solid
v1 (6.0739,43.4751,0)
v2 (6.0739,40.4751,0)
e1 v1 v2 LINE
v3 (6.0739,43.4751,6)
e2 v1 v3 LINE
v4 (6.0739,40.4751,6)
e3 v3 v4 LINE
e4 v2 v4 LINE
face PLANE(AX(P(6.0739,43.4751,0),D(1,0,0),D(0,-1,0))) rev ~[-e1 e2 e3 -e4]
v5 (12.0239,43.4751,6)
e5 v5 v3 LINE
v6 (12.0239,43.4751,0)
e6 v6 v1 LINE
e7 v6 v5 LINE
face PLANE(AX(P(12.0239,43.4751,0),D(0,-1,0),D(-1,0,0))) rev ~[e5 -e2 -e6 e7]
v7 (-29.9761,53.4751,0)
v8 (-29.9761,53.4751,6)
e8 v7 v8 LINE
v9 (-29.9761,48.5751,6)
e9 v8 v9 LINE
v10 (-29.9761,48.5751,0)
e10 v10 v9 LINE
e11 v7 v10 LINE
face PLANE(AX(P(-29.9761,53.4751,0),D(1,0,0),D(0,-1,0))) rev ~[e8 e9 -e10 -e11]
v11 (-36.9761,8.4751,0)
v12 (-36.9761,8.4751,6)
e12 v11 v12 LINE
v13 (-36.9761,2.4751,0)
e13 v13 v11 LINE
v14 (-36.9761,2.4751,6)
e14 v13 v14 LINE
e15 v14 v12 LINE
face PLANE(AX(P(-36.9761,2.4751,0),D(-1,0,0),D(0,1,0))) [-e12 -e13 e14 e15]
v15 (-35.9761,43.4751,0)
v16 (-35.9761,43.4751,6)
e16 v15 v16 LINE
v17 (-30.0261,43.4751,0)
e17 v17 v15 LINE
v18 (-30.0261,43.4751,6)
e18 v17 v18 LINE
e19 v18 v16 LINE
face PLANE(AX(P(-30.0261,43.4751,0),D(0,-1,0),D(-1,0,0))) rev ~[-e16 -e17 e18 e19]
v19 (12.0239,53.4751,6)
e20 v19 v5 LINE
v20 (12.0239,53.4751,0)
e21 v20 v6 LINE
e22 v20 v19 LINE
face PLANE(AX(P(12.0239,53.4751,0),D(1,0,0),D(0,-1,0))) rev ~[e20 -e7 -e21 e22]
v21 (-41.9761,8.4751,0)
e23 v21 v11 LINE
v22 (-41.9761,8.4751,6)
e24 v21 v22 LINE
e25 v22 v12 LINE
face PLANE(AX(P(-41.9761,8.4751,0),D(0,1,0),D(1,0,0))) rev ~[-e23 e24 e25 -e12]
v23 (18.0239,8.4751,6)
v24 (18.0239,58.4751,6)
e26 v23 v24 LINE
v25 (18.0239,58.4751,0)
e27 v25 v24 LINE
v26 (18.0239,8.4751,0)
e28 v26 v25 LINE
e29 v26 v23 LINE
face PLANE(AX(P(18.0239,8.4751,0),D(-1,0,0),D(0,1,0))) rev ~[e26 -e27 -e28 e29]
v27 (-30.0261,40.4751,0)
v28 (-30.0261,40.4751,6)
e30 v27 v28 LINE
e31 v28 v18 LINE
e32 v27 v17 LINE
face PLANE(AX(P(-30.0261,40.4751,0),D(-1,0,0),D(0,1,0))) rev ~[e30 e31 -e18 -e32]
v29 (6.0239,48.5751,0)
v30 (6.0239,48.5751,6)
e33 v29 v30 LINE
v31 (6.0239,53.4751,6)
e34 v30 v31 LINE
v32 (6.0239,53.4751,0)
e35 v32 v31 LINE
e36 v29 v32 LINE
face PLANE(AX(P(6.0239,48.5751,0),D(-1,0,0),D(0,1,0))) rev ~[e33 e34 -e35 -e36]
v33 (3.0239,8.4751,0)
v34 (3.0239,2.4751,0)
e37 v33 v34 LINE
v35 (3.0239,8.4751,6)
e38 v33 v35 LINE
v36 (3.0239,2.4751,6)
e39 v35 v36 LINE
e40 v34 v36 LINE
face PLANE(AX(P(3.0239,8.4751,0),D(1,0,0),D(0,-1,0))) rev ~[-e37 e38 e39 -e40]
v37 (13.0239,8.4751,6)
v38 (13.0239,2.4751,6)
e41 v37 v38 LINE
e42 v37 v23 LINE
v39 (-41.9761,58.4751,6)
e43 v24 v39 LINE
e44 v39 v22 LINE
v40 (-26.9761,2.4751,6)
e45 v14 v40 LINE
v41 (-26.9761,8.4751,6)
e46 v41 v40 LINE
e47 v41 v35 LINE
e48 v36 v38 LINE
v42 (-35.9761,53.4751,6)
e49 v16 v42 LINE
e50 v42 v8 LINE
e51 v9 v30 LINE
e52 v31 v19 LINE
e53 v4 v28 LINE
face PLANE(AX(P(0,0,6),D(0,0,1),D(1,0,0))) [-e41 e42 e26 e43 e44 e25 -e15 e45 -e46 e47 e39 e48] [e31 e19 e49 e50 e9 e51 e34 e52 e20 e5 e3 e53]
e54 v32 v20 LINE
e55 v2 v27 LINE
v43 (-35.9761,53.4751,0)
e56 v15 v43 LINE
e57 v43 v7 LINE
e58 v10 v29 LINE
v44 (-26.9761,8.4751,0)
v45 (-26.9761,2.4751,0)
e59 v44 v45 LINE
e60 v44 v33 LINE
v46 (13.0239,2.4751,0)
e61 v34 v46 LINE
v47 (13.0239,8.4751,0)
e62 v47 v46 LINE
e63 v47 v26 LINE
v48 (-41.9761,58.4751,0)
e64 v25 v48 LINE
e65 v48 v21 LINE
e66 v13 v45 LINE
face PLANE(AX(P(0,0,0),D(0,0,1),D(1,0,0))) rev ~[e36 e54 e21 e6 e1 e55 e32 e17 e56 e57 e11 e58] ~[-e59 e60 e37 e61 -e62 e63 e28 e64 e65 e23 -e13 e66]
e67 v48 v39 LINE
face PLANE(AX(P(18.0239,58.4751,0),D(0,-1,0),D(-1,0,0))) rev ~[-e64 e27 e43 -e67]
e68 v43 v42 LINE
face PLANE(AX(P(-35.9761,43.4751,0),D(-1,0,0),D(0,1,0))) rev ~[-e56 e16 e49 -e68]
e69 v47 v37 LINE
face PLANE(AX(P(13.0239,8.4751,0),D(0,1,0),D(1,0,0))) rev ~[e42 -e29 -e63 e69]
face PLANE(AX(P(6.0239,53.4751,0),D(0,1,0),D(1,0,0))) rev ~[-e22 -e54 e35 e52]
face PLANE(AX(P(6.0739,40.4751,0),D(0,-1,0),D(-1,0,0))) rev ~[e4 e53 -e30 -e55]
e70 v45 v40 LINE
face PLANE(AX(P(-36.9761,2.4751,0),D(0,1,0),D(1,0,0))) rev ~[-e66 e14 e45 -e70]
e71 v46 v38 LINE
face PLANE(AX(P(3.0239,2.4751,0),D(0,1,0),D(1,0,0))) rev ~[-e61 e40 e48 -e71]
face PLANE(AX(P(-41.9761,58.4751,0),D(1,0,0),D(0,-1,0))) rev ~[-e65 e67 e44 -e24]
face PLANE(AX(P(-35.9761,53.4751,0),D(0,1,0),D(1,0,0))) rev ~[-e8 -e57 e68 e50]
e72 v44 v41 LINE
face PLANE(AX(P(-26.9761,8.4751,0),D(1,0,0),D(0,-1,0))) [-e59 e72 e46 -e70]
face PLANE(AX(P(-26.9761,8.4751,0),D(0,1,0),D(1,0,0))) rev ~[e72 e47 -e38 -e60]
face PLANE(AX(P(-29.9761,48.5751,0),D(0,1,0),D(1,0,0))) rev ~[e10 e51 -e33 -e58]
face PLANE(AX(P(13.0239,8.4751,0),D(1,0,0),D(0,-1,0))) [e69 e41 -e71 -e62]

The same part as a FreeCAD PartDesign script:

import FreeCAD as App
import Part
import Sketcher
Q = App.Units.Quantity

doc = App.newDocument("Part")
body = doc.addObject("PartDesign::Body", "Body")

sketch1 = body.newObject("Sketcher::SketchObject", "Sketch")
sketch1.AttachmentSupport = (doc.getObject("XY_Plane"), [""])
sketch1.MapMode = "FlatFace"
sketch1.addGeometry(Part.LineSegment(App.Vector(13, 8.5, 0), App.Vector(18, 8.5, 0)), False)
sketch1.addGeometry(Part.LineSegment(App.Vector(18, 8.5, 0), App.Vector(18, 58.5, 0)), False)
sketch1.addGeometry(Part.LineSegment(App.Vector(18, 58.5, 0), App.Vector(-42, 58.5, 0)), False)
sketch1.addGeometry(Part.LineSegment(App.Vector(-42, 58.5, 0), App.Vector(-42, 8.5, 0)), False)
sketch1.addGeometry(Part.LineSegment(App.Vector(-42, 8.5, 0), App.Vector(-37, 8.5, 0)), False)
sketch1.addGeometry(Part.LineSegment(App.Vector(-37, 8.5, 0), App.Vector(-37, 2.5, 0)), False)
sketch1.addGeometry(Part.LineSegment(App.Vector(-37, 2.5, 0), App.Vector(-27, 2.5, 0)), False)
sketch1.addGeometry(Part.LineSegment(App.Vector(-27, 2.5, 0), App.Vector(-27, 8.5, 0)), False)
sketch1.addGeometry(Part.LineSegment(App.Vector(-27, 8.5, 0), App.Vector(3, 8.5, 0)), False)
sketch1.addGeometry(Part.LineSegment(App.Vector(3, 8.5, 0), App.Vector(3, 2.5, 0)), False)
sketch1.addGeometry(Part.LineSegment(App.Vector(3, 2.5, 0), App.Vector(13, 2.5, 0)), False)
sketch1.addGeometry(Part.LineSegment(App.Vector(13, 2.5, 0), App.Vector(13, 8.5, 0)), False)
sketch1.addGeometry(Part.LineSegment(App.Vector(-30, 53.5, 0), App.Vector(-30, 48.6, 0)), False)
sketch1.addGeometry(Part.LineSegment(App.Vector(-30, 48.6, 0), App.Vector(6, 48.6, 0)), False)
sketch1.addGeometry(Part.LineSegment(App.Vector(6, 48.6, 0), App.Vector(6, 53.5, 0)), False)
sketch1.addGeometry(Part.LineSegment(App.Vector(6, 53.5, 0), App.Vector(12, 53.5, 0)), False)
sketch1.addGeometry(Part.LineSegment(App.Vector(12, 53.5, 0), App.Vector(12, 43.5, 0)), False)
sketch1.addGeometry(Part.LineSegment(App.Vector(12, 43.5, 0), App.Vector(6.1, 43.5, 0)), False)
sketch1.addGeometry(Part.LineSegment(App.Vector(6.1, 43.5, 0), App.Vector(6.1, 40.5, 0)), False)
sketch1.addGeometry(Part.LineSegment(App.Vector(6.1, 40.5, 0), App.Vector(-30, 40.5, 0)), False)
sketch1.addGeometry(Part.LineSegment(App.Vector(-30, 40.5, 0), App.Vector(-30, 43.5, 0)), False)
sketch1.addGeometry(Part.LineSegment(App.Vector(-30, 43.5, 0), App.Vector(-36, 43.5, 0)), False)
sketch1.addGeometry(Part.LineSegment(App.Vector(-36, 43.5, 0), App.Vector(-36, 53.5, 0)), False)
sketch1.addGeometry(Part.LineSegment(App.Vector(-36, 53.5, 0), App.Vector(-30, 53.5, 0)), False)
sketch1.addConstraint(Sketcher.Constraint("Coincident", 0, 2, 1, 1))
sketch1.addConstraint(Sketcher.Constraint("Coincident", 1, 2, 2, 1))
sketch1.addConstraint(Sketcher.Constraint("Coincident", 2, 2, 3, 1))
sketch1.addConstraint(Sketcher.Constraint("Coincident", 3, 2, 4, 1))
sketch1.addConstraint(Sketcher.Constraint("Coincident", 4, 2, 5, 1))
sketch1.addConstraint(Sketcher.Constraint("Coincident", 5, 2, 6, 1))
sketch1.addConstraint(Sketcher.Constraint("Coincident", 6, 2, 7, 1))
sketch1.addConstraint(Sketcher.Constraint("Coincident", 7, 2, 8, 1))
sketch1.addConstraint(Sketcher.Constraint("Coincident", 8, 2, 9, 1))
sketch1.addConstraint(Sketcher.Constraint("Coincident", 9, 2, 10, 1))
sketch1.addConstraint(Sketcher.Constraint("Coincident", 10, 2, 11, 1))
sketch1.addConstraint(Sketcher.Constraint("Coincident", 11, 2, 0, 1))
sketch1.addConstraint(Sketcher.Constraint("Coincident", 12, 2, 13, 1))
sketch1.addConstraint(Sketcher.Constraint("Coincident", 13, 2, 14, 1))
sketch1.addConstraint(Sketcher.Constraint("Coincident", 14, 2, 15, 1))
sketch1.addConstraint(Sketcher.Constraint("Coincident", 15, 2, 16, 1))
sketch1.addConstraint(Sketcher.Constraint("Coincident", 16, 2, 17, 1))
sketch1.addConstraint(Sketcher.Constraint("Coincident", 17, 2, 18, 1))
sketch1.addConstraint(Sketcher.Constraint("Coincident", 18, 2, 19, 1))
sketch1.addConstraint(Sketcher.Constraint("Coincident", 19, 2, 20, 1))
sketch1.addConstraint(Sketcher.Constraint("Coincident", 20, 2, 21, 1))
sketch1.addConstraint(Sketcher.Constraint("Coincident", 21, 2, 22, 1))
sketch1.addConstraint(Sketcher.Constraint("Coincident", 22, 2, 23, 1))
sketch1.addConstraint(Sketcher.Constraint("Coincident", 23, 2, 12, 1))
sketch1.addConstraint(Sketcher.Constraint("Horizontal", 0))
sketch1.addConstraint(Sketcher.Constraint("Vertical", 1))
sketch1.addConstraint(Sketcher.Constraint("Horizontal", 2))
sketch1.addConstraint(Sketcher.Constraint("Vertical", 3))
sketch1.addConstraint(Sketcher.Constraint("Horizontal", 4))
sketch1.addConstraint(Sketcher.Constraint("Vertical", 5))
sketch1.addConstraint(Sketcher.Constraint("Horizontal", 6))
sketch1.addConstraint(Sketcher.Constraint("Vertical", 7))
sketch1.addConstraint(Sketcher.Constraint("Horizontal", 8))
sketch1.addConstraint(Sketcher.Constraint("Vertical", 9))
sketch1.addConstraint(Sketcher.Constraint("Horizontal", 10))
sketch1.addConstraint(Sketcher.Constraint("Vertical", 11))
sketch1.addConstraint(Sketcher.Constraint("Vertical", 12))
sketch1.addConstraint(Sketcher.Constraint("Horizontal", 13))
sketch1.addConstraint(Sketcher.Constraint("Vertical", 14))
sketch1.addConstraint(Sketcher.Constraint("Horizontal", 15))
sketch1.addConstraint(Sketcher.Constraint("Vertical", 16))
sketch1.addConstraint(Sketcher.Constraint("Horizontal", 17))
sketch1.addConstraint(Sketcher.Constraint("Vertical", 18))
sketch1.addConstraint(Sketcher.Constraint("Horizontal", 19))
sketch1.addConstraint(Sketcher.Constraint("Vertical", 20))
sketch1.addConstraint(Sketcher.Constraint("Horizontal", 21))
sketch1.addConstraint(Sketcher.Constraint("Vertical", 22))
sketch1.addConstraint(Sketcher.Constraint("Horizontal", 23))
sketch1.addConstraint(Sketcher.Constraint("Horizontal", 0, 2, 3, 2))
sketch1.addConstraint(Sketcher.Constraint("Horizontal", 4, 2, 7, 2))
sketch1.addConstraint(Sketcher.Constraint("Horizontal", 6, 2, 9, 2))
sketch1.addConstraint(Sketcher.Constraint("Horizontal", 17, 2, 20, 2))
sketch1.addConstraint(Sketcher.Constraint("Horizontal", 15, 2, 22, 2))
sketch1.addConstraint(Sketcher.Constraint("Equal", 0, 4))
sketch1.addConstraint(Sketcher.Constraint("Equal", 6, 10))
sketch1.addConstraint(Sketcher.Constraint("Equal", 17, 21))
sketch1.addConstraint(Sketcher.Constraint("Equal", 15, 23))
sketch1.addConstraint(Sketcher.Constraint("Equal", 23, 5))
sketch1.addConstraint(Sketcher.Constraint("Equal", 10, 16))
sketch1.addConstraint(Sketcher.Constraint("DistanceX", 6, 1, 6, 2, Q("10 mm")))
sketch1.addConstraint(Sketcher.Constraint("DistanceX", 13, 1, 13, 2, Q("36 mm")))
sketch1.addConstraint(Sketcher.Constraint("DistanceX", 15, 1, 15, 2, Q("6 mm")))
sketch1.addConstraint(Sketcher.Constraint("DistanceY", 1, 1, 1, 2, Q("50 mm")))
sketch1.addConstraint(Sketcher.Constraint("DistanceX", 19, 2, 19, 1, Q("36.1 mm")))
sketch1.addConstraint(Sketcher.Constraint("DistanceX", 15, 2, 1, 2, Q("6 mm")))
sketch1.addConstraint(Sketcher.Constraint("DistanceY", 11, 2, 16, 2, Q("35 mm")))
sketch1.addConstraint(Sketcher.Constraint("DistanceY", 7, 2, 19, 2, Q("32 mm")))
sketch1.addConstraint(Sketcher.Constraint("DistanceX", 2, 2, 21, 2, Q("6 mm")))
sketch1.addConstraint(Sketcher.Constraint("DistanceY", 18, 2, 13, 2, Q("8.1 mm")))
sketch1.addConstraint(Sketcher.Constraint("DistanceX", 0, 1, 0, 2, Q("5 mm")))
sketch1.addConstraint(Sketcher.Constraint("DistanceX", -1, 1, 0, 2, Q("18.024 mm")))
sketch1.addConstraint(Sketcher.Constraint("DistanceY", -1, 1, 0, 2, Q("8.475 mm")))
pad1 = body.newObject("PartDesign::Pad", "Pad")
pad1.Profile = sketch1
pad1.Length = 6

doc.recompute()
